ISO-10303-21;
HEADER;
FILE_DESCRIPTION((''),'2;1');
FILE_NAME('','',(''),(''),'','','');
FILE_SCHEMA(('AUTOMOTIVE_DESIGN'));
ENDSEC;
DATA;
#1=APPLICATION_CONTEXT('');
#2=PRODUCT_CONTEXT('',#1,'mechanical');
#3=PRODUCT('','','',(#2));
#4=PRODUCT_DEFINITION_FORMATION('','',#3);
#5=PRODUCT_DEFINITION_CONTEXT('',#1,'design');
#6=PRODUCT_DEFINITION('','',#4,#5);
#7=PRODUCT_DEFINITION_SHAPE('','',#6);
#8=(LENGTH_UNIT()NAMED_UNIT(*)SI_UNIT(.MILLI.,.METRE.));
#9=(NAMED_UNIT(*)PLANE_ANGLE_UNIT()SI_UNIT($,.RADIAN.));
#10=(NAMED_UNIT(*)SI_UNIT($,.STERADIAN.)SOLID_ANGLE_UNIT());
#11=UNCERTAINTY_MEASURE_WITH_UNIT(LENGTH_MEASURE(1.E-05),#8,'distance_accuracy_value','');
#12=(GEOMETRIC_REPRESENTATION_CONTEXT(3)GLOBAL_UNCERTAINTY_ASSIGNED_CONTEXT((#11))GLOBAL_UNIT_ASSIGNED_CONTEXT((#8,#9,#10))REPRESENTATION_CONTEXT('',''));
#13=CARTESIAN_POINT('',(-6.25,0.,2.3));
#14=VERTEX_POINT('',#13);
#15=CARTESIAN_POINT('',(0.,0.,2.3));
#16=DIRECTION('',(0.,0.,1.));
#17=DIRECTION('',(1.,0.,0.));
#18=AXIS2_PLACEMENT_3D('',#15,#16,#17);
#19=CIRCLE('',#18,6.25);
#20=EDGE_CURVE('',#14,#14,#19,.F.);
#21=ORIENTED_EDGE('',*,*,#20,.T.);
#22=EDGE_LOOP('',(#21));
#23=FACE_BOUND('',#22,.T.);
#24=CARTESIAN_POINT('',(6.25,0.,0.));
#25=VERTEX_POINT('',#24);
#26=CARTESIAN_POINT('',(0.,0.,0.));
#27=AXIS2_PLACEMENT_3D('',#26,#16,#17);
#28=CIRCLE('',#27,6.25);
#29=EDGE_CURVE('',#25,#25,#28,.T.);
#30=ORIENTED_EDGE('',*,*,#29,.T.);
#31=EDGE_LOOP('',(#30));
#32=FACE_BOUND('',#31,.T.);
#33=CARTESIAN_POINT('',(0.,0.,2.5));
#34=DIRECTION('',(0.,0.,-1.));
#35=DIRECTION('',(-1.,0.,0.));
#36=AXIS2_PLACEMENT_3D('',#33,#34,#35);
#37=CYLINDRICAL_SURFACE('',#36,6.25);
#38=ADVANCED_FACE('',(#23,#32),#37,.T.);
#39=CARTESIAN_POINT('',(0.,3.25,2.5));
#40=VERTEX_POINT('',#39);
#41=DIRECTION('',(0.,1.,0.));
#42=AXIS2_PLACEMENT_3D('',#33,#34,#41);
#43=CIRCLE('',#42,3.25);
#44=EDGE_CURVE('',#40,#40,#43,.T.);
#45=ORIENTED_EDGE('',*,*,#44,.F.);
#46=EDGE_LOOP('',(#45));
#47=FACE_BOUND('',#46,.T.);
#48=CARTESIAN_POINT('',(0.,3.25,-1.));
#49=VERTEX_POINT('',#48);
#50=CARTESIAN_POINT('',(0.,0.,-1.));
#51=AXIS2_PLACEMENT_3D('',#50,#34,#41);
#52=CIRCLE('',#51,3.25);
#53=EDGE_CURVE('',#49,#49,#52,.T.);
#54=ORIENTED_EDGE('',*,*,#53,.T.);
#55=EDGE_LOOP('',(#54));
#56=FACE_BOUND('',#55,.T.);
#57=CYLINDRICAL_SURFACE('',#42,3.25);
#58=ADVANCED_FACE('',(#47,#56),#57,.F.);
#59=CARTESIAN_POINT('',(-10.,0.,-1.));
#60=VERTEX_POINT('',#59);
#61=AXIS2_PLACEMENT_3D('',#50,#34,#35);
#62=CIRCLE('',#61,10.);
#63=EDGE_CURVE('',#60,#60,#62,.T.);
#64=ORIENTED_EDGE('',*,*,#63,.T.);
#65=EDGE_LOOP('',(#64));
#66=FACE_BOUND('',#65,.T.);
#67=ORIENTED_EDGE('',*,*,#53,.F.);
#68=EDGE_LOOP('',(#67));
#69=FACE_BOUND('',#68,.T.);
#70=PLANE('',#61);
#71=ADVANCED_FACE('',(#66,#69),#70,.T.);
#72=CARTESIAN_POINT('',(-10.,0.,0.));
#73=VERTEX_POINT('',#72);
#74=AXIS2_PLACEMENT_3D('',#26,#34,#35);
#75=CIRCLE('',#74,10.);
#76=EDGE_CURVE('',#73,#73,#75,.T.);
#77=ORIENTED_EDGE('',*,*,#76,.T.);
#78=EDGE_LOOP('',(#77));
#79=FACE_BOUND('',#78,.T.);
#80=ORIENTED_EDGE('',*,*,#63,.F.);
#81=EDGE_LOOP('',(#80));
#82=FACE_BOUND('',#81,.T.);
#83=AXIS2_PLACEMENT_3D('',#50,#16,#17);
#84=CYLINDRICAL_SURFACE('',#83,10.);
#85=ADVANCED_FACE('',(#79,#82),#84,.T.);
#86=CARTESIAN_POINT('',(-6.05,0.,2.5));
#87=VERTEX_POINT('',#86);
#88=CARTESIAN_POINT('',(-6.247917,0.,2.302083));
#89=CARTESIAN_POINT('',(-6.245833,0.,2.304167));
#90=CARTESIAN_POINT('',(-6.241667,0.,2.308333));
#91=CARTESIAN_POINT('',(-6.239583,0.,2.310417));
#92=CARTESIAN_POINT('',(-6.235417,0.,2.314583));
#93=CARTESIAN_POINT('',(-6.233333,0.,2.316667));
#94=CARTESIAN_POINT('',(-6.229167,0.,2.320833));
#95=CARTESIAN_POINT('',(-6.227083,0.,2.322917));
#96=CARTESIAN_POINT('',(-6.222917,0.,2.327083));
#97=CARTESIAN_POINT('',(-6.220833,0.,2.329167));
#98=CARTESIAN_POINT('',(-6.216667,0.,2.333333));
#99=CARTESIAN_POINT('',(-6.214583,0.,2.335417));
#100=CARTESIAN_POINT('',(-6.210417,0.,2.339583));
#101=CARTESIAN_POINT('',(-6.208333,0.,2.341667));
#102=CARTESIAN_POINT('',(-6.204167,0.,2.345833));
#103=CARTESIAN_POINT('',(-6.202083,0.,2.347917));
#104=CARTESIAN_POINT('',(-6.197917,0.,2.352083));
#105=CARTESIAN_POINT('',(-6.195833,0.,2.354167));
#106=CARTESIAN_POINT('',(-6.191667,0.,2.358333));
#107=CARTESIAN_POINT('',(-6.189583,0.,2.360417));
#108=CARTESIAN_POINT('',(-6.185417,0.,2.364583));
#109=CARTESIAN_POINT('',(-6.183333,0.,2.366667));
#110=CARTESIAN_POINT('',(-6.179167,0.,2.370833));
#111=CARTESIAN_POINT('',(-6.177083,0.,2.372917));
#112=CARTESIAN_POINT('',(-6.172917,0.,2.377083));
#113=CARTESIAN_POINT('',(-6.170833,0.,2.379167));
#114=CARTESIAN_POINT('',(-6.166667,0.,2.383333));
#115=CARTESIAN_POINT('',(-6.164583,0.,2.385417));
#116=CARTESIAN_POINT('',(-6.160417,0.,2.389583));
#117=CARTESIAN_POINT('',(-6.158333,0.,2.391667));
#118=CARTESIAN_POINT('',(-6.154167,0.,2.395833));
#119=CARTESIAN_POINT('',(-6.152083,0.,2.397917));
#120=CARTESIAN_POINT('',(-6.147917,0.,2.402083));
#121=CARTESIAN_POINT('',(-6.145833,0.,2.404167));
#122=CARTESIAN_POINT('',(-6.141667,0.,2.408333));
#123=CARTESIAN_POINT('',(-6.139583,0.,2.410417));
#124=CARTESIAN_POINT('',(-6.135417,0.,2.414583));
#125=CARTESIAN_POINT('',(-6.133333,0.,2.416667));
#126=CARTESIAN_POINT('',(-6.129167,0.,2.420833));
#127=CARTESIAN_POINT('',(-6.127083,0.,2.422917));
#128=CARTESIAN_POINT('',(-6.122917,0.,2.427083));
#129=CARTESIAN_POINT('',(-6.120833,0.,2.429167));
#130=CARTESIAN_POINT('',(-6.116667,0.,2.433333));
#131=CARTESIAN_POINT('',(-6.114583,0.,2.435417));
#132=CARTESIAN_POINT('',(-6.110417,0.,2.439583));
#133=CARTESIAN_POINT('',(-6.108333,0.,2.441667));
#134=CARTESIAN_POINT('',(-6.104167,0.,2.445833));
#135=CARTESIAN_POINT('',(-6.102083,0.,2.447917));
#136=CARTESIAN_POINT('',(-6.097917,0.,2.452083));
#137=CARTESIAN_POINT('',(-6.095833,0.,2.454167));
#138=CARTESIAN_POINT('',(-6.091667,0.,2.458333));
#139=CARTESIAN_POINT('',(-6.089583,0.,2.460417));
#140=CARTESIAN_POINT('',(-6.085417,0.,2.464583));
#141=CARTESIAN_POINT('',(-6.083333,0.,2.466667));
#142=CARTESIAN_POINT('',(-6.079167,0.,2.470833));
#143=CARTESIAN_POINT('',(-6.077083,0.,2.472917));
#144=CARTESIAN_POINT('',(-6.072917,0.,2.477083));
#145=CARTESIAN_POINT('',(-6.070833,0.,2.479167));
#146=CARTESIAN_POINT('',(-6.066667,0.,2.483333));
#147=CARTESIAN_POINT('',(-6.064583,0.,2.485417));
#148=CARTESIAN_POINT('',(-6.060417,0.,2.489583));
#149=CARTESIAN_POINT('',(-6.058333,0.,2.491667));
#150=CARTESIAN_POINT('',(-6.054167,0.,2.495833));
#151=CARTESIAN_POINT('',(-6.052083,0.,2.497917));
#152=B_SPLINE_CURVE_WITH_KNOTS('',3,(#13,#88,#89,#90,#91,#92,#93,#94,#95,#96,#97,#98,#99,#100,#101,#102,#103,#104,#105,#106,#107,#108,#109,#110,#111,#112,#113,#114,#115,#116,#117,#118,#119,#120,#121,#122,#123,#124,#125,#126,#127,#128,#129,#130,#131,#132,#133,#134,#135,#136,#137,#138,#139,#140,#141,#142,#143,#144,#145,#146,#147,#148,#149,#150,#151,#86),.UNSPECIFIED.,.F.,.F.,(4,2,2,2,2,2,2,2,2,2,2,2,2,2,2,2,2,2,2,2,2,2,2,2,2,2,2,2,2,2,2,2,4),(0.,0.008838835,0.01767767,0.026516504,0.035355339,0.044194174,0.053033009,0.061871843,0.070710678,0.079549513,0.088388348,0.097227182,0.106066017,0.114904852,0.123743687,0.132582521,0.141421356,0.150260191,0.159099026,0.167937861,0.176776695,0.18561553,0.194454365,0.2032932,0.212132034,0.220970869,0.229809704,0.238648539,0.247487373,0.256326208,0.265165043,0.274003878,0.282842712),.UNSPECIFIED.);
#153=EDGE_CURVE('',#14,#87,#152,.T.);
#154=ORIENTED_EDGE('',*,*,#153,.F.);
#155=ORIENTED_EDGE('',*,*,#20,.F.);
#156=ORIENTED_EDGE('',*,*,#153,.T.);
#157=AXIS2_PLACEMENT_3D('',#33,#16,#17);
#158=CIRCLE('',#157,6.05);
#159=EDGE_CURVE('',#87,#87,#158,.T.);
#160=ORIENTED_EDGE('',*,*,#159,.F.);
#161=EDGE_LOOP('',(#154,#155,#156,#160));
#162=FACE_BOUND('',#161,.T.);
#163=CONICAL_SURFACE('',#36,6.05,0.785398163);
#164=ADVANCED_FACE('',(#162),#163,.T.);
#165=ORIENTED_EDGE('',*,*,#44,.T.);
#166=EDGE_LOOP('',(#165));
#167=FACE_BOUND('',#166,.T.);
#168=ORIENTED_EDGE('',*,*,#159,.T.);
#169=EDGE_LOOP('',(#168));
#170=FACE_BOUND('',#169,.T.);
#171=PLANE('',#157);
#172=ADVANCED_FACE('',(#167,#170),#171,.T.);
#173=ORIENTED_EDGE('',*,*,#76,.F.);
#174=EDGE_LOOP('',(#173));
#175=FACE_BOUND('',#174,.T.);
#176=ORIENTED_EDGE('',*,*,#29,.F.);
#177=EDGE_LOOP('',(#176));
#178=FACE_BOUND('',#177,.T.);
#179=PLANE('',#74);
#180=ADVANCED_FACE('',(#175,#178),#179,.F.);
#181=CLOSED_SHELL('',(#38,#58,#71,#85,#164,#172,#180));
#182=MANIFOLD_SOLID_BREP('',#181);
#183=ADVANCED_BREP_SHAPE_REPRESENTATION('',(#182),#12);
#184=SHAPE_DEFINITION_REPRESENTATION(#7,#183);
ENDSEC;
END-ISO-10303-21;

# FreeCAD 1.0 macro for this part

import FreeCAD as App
import Part
import Sketcher
Q = App.Units.Quantity


def edges_at(feature, points):
    """Names of the edges that pass closest to the given points."""
    edges = feature.Shape.Edges
    near = lambda p: min(range(len(edges)), key=lambda i: edges[i].distToShape(Part.Vertex(*p))[0])
    return sorted({f"Edge{near(p) + 1}" for p in points})

doc = App.newDocument("Part")
params = doc.addObject("Spreadsheet::Sheet", "Params")
for row, (alias, value) in enumerate([
    ("sketch1_diameter", "20 mm"),
    ("pad1_length", "1 mm"),
    ("sketch2_diameter", "12.5 mm"),
    ("pad2_length", "2.5 mm"),
    ("sketch3_diameter", "6.5 mm"),
    ("chamfer_size", "0.2 mm"),
], start=1):
    params.set(f"A{row}", alias)
    params.set(f"B{row}", "=" + value)
    params.setAlias(f"B{row}", alias)

body = doc.addObject("PartDesign::Body", "Body")

# Sketch on XY plane
sketch1 = body.newObject("Sketcher::SketchObject", "Sketch")
sketch1.AttachmentSupport = (doc.getObject("XY_Plane"), [""])
sketch1.MapMode = "FlatFace"
sketch1.addGeometry(Part.Circle(App.Vector(0, 0, 0), App.Vector(0, 0, 1), 10), False)
sketch1.addConstraint(Sketcher.Constraint("Coincident", 0, 3, -1, 1))
sketch1.addConstraint(Sketcher.Constraint("Diameter", 0, Q("20 mm")))
sketch1.setExpression("Constraints[1]", "Params.sketch1_diameter")
pad1 = body.newObject("PartDesign::Pad", "Pad")
pad1.Profile = sketch1
pad1.setExpression("Length", "Params.pad1_length")
pad1.Reversed = True

# Sketch on XY plane
sketch2 = body.newObject("Sketcher::SketchObject", "Sketch001")
sketch2.AttachmentSupport = (doc.getObject("XY_Plane"), [""])
sketch2.MapMode = "FlatFace"
sketch2.addGeometry(Part.Circle(App.Vector(0, 0, 0), App.Vector(0, 0, 1), 6), False)
sketch2.addConstraint(Sketcher.Constraint("Coincident", 0, 3, -1, 1))
sketch2.addConstraint(Sketcher.Constraint("Diameter", 0, Q("12.5 mm")))
sketch2.setExpression("Constraints[1]", "Params.sketch2_diameter")
pad2 = body.newObject("PartDesign::Pad", "Pad001")
pad2.Profile = sketch2
pad2.setExpression("Length", "Params.pad2_length")

# Sketch on XY plane
sketch3 = body.newObject("Sketcher::SketchObject", "Sketch002")
sketch3.AttachmentSupport = (doc.getObject("XY_Plane"), [""])
sketch3.MapMode = "FlatFace"
sketch3.AttachmentOffset = App.Placement(App.Vector(0, 0, -1), App.Rotation())
sketch3.addGeometry(Part.Circle(App.Vector(0, 0, 0), App.Vector(0, 0, 1), 3.2), False)
sketch3.addConstraint(Sketcher.Constraint("Coincident", 0, 3, -1, 1))
sketch3.addConstraint(Sketcher.Constraint("Diameter", 0, Q("6.5 mm")))
sketch3.setExpression("Constraints[1]", "Params.sketch3_diameter")
pocket1 = body.newObject("PartDesign::Pocket", "Pocket")
pocket1.Profile = sketch3
pocket1.Type = "ThroughAll"
pocket1.Reversed = True
doc.recompute()

chamfer = body.newObject("PartDesign::Chamfer", "Chamfer")
chamfer.Base = (pocket1, edges_at(pocket1, [(-6.25, 0, 2.5)]))
chamfer.setExpression("Size", "Params.chamfer_size")

doc.recompute()
